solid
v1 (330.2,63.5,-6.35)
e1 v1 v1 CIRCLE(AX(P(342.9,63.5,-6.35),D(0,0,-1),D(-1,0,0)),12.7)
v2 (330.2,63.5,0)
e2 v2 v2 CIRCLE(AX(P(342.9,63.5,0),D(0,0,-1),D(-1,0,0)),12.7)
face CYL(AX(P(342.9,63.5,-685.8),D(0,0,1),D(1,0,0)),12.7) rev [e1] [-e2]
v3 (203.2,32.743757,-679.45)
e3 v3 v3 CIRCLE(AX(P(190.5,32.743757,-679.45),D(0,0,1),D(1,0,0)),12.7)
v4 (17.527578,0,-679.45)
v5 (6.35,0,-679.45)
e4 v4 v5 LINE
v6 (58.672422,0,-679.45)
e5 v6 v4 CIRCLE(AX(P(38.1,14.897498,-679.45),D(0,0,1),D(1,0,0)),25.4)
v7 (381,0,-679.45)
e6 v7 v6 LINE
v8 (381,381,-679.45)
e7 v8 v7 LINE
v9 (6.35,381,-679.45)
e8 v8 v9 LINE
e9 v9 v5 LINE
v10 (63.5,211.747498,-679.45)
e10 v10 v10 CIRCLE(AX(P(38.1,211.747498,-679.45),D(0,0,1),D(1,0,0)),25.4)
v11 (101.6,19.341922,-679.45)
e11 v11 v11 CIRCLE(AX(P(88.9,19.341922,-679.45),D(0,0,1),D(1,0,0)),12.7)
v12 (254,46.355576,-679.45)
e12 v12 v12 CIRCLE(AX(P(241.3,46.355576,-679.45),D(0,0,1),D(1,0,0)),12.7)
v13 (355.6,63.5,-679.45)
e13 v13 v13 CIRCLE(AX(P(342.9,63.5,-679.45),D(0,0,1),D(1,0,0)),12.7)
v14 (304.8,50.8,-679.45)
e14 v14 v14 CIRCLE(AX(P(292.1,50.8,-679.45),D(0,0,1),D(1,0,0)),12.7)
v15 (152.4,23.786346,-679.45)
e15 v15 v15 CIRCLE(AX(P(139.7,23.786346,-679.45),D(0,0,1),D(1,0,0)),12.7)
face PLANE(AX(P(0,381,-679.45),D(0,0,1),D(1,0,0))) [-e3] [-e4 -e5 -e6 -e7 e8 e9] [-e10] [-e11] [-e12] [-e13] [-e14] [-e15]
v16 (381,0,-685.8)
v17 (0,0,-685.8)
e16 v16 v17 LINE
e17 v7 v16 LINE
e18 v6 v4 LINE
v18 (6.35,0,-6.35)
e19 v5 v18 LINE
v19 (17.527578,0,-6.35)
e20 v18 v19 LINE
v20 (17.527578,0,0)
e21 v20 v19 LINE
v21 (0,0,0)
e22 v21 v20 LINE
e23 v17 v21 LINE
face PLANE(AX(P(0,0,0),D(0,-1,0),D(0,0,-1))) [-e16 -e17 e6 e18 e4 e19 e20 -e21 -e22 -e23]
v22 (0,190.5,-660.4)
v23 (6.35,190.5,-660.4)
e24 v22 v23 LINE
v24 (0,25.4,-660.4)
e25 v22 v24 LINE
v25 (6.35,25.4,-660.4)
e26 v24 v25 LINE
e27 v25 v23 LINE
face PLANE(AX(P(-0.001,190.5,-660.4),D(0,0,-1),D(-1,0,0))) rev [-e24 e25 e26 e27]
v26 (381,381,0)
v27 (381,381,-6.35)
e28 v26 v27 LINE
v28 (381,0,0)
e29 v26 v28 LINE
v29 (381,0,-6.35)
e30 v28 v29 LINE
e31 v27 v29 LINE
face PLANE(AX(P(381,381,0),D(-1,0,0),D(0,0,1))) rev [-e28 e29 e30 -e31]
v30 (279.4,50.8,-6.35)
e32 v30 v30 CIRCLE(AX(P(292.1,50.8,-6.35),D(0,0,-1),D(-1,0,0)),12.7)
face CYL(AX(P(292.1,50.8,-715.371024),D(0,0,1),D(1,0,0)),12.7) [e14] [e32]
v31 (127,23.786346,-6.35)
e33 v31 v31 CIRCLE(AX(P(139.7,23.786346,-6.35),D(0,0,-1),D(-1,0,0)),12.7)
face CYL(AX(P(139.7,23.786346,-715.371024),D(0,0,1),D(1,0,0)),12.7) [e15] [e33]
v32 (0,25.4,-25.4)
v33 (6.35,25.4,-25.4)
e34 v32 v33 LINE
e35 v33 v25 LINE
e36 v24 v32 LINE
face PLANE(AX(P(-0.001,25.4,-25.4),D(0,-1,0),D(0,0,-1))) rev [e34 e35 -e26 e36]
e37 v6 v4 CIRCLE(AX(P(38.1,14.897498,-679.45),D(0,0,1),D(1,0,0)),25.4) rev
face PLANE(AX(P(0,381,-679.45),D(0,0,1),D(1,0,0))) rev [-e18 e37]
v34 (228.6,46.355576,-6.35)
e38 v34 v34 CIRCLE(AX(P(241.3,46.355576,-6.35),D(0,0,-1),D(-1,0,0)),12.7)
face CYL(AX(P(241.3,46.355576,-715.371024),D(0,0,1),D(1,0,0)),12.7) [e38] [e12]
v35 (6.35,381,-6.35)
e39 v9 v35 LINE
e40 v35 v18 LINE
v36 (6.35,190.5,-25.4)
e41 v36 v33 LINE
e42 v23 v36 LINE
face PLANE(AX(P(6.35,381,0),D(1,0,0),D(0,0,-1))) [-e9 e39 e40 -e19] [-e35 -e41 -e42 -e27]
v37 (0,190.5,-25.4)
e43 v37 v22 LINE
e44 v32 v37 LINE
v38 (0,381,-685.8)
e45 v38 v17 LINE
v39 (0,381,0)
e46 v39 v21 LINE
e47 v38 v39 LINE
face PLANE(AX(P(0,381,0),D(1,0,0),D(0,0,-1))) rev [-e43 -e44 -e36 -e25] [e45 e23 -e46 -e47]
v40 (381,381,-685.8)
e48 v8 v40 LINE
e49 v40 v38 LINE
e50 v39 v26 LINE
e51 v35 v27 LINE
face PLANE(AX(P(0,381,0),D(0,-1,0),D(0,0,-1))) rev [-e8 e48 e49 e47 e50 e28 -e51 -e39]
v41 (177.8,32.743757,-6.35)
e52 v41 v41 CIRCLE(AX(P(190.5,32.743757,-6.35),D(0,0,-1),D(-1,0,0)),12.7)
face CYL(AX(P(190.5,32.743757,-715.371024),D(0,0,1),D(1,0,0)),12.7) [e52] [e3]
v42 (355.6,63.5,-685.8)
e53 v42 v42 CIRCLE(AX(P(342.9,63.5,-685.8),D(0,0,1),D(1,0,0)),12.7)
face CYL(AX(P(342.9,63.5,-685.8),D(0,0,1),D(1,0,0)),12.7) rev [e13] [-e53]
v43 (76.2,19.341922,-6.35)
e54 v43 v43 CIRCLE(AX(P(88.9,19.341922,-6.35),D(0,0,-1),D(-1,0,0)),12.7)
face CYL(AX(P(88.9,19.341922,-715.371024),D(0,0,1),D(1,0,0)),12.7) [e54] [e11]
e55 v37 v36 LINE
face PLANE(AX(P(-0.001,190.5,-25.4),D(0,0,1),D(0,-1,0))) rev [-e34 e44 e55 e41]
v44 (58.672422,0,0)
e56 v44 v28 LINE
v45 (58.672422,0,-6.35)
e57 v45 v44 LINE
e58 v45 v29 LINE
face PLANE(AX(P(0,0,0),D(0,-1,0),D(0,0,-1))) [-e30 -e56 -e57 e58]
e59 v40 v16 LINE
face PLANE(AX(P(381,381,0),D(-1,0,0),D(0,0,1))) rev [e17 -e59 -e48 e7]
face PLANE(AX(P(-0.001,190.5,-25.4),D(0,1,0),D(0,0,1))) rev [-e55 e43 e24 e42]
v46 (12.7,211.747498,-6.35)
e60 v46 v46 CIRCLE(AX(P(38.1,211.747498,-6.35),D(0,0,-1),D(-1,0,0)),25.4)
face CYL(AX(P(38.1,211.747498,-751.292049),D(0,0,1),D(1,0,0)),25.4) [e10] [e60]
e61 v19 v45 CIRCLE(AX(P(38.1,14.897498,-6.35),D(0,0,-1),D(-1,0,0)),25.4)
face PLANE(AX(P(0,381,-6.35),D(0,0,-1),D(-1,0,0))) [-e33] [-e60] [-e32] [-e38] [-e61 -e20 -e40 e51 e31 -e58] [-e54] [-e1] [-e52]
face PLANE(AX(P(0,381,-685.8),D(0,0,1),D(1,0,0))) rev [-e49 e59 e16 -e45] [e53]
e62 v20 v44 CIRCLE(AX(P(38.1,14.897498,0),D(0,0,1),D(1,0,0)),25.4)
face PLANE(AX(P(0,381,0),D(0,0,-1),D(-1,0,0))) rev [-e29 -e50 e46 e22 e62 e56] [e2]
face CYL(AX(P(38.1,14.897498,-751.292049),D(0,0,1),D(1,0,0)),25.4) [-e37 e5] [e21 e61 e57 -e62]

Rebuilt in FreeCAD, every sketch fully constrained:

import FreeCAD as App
import Part
import Sketcher
from FreeCAD import Vector
Q = App.Units.Quantity


def faces_at(feature, points):
    """Names of the faces that lie closest to the given points."""
    faces = feature.Shape.Faces
    near = lambda p: min(range(len(faces)), key=lambda i: faces[i].distToShape(Part.Vertex(*p))[0])
    return sorted({f"Face{near(p) + 1}" for p in points})


def add_polygon(sketch, points):
    """Adds a closed chain of lines whose ends are joined by coincident constraints."""
    first, n = sketch.GeometryCount, len(points)
    for a, b in zip(points, points[1:] + points[:1]):
        sketch.addGeometry(Part.LineSegment(App.Vector(*a, 0), App.Vector(*b, 0)), False)
    for i in range(n):
        sketch.addConstraint(Sketcher.Constraint("Coincident", first + i, 2, first + (i + 1) % n, 1))

doc = App.newDocument("Part")
body = doc.addObject("PartDesign::Body", "Body")

# Sketch on XZ plane
sketch1 = body.newObject("Sketcher::SketchObject", "Sketch")
sketch1.AttachmentSupport = (doc.getObject("XZ_Plane"), [""])
sketch1.MapMode = "FlatFace"
add_polygon(sketch1, [(0, -686), (0, 0), (381, 0), (381, -686)])  # lines 0-3
sketch1.addConstraint([
    Sketcher.Constraint("Vertical", 0),
    Sketcher.Constraint("Horizontal", 1),
    Sketcher.Constraint("Vertical", 2),
    Sketcher.Constraint("Horizontal", 3),
    Sketcher.Constraint("Coincident", 0, 2, -1, 1),
    Sketcher.Constraint("DistanceX", 1, 1, 1, 2, Q("15 in")),
    Sketcher.Constraint("DistanceY", 0, 1, 0, 2, Q("27 in")),
])
pad1 = body.newObject("PartDesign::Pad", "Pad")
pad1.Profile = sketch1
pad1.Length = Q("15 in")
pad1.Reversed = True
doc.recompute()

thickness = body.newObject("PartDesign::Thickness", "Thickness")
thickness.Base = (pad1, faces_at(pad1, [(190.5, 381, -342.9), (190.5, 0, -342.9), (381, 190.5, -342.9)]))
thickness.Value = Q("0.25 in")
thickness.Reversed = True
thickness.Join = "Intersection"

# Sketch on XY plane
sketch2 = body.newObject("Sketcher::SketchObject", "Sketch001")
sketch2.AttachmentSupport = (doc.getObject("XY_Plane"), [""])
sketch2.MapMode = "FlatFace"
sketch2.addGeometry(Part.Circle(Vector(343, 64, 0), Vector(0, 0, 1), 13), False)
sketch2.addConstraint([
    Sketcher.Constraint("Diameter", 0, Q("1 in")),
    Sketcher.Constraint("DistanceX", -1, 1, 0, 3, Q("13.5 in")),
    Sketcher.Constraint("DistanceY", -1, 1, 0, 3, Q("2.5 in")),
])
pocket1 = body.newObject("PartDesign::Pocket", "Pocket")
pocket1.Profile = sketch2
pocket1.Type = "ThroughAll"
pocket1.Midplane = True

# Sketch on XY plane
sketch3 = body.newObject("Sketcher::SketchObject", "Sketch002")
sketch3.AttachmentSupport = (doc.getObject("XY_Plane"), [""])
sketch3.MapMode = "FlatFace"
sketch3.addGeometry([
    Part.Circle(Vector(292, 51, 0), Vector(0, 0, 1), 13),  # 0
    Part.Circle(Vector(190, 33, 0), Vector(0, 0, 1), 13),  # 1
    Part.Circle(Vector(89, 19, 0), Vector(0, 0, 1), 13),  # 2
    Part.Circle(Vector(241, 46, 0), Vector(0, 0, 1), 13),  # 3
    Part.Circle(Vector(140, 24, 0), Vector(0, 0, 1), 13),  # 4
], False)
sketch3.addConstraint([
    Sketcher.Constraint("Equal", 0, 1),
    Sketcher.Constraint("Equal", 1, 2),
    Sketcher.Constraint("Equal", 2, 3),
    Sketcher.Constraint("Equal", 3, 4),
    Sketcher.Constraint("Diameter", 0, Q("1 in")),
    Sketcher.Constraint("DistanceY", -1, 1, 0, 3, Q("2 in")),
    Sketcher.Constraint("DistanceX", 1, 3, 0, 3, Q("4 in")),
    Sketcher.Constraint("DistanceX", 2, 3, 1, 3, Q("4 in")),
    Sketcher.Constraint("DistanceX", 3, 3, 0, 3, Q("2 in")),
    Sketcher.Constraint("DistanceX", 2, 3, 4, 3, Q("2 in")),
    Sketcher.Constraint("DistanceX", -1, 1, 0, 3, Q("11.5 in")),
    Sketcher.Constraint("DistanceY", 1, 3, 3, 3, 13.611819),
    Sketcher.Constraint("DistanceY", 4, 3, 1, 3, 8.957411),
    Sketcher.Constraint("DistanceY", -1, 1, 1, 3, 32.743757),
    Sketcher.Constraint("DistanceY", -1, 1, 2, 3, 19.341922),
])
pad2 = body.newObject("PartDesign::Pad", "Pad001")
pad2.Profile = sketch3
pad2.Length = Q("26.75 in")
pad2.Reversed = True

# Sketch on XY plane
sketch4 = body.newObject("Sketcher::SketchObject", "Sketch003")
sketch4.AttachmentSupport = (doc.getObject("XY_Plane"), [""])
sketch4.MapMode = "FlatFace"
sketch4.addGeometry([
    Part.Circle(Vector(38, 15, 0), Vector(0, 0, 1), 25),
    Part.Circle(Vector(38, 212, 0), Vector(0, 0, 1), 25),
], False)
sketch4.addConstraint([
    Sketcher.Constraint("Equal", 0, 1),
    Sketcher.Constraint("Vertical", 0, 3, 1, 3),
    Sketcher.Constraint("Diameter", 0, Q("2 in")),
    Sketcher.Constraint("DistanceX", -1, 1, 0, 3, Q("1.5 in")),
    Sketcher.Constraint("DistanceY", 0, 3, 1, 3, Q("7.75 in")),
    Sketcher.Constraint("DistanceY", -1, 1, 0, 3, 14.897498),
])
pad3 = body.newObject("PartDesign::Pad", "Pad002")
pad3.Profile = sketch4
pad3.Length = Q("26.75 in")
pad3.Reversed = True

# Sketch on YZ plane
sketch5 = body.newObject("Sketcher::SketchObject", "Sketch004")
sketch5.AttachmentSupport = (doc.getObject("YZ_Plane"), [""])
sketch5.MapMode = "FlatFace"
sketch5.AttachmentOffset = App.Placement(Vector(0, 0, 0.25 * 25.4), App.Rotation())
add_polygon(sketch5, [(190, -25), (25, -25), (25, -660), (190, -660)])  # lines 0-3
sketch5.addConstraint([
    Sketcher.Constraint("Horizontal", 0),
    Sketcher.Constraint("Vertical", 1),
    Sketcher.Constraint("Horizontal", 2),
    Sketcher.Constraint("Vertical", 3),
    Sketcher.Constraint("DistanceY", 1, 2, 1, 1, Q("25 in")),
    Sketcher.Constraint("DistanceX", 0, 2, 0, 1, Q("6.5 in")),
    Sketcher.Constraint("DistanceX", -1, 1, 0, 2, Q("1 in")),
    Sketcher.Constraint("DistanceY", 0, 2, -1, 1, Q("1 in")),
])
pocket2 = body.newObject("PartDesign::Pocket", "Pocket001")
pocket2.Profile = sketch5
pocket2.Type = "UpToFirst"

doc.recompute()
